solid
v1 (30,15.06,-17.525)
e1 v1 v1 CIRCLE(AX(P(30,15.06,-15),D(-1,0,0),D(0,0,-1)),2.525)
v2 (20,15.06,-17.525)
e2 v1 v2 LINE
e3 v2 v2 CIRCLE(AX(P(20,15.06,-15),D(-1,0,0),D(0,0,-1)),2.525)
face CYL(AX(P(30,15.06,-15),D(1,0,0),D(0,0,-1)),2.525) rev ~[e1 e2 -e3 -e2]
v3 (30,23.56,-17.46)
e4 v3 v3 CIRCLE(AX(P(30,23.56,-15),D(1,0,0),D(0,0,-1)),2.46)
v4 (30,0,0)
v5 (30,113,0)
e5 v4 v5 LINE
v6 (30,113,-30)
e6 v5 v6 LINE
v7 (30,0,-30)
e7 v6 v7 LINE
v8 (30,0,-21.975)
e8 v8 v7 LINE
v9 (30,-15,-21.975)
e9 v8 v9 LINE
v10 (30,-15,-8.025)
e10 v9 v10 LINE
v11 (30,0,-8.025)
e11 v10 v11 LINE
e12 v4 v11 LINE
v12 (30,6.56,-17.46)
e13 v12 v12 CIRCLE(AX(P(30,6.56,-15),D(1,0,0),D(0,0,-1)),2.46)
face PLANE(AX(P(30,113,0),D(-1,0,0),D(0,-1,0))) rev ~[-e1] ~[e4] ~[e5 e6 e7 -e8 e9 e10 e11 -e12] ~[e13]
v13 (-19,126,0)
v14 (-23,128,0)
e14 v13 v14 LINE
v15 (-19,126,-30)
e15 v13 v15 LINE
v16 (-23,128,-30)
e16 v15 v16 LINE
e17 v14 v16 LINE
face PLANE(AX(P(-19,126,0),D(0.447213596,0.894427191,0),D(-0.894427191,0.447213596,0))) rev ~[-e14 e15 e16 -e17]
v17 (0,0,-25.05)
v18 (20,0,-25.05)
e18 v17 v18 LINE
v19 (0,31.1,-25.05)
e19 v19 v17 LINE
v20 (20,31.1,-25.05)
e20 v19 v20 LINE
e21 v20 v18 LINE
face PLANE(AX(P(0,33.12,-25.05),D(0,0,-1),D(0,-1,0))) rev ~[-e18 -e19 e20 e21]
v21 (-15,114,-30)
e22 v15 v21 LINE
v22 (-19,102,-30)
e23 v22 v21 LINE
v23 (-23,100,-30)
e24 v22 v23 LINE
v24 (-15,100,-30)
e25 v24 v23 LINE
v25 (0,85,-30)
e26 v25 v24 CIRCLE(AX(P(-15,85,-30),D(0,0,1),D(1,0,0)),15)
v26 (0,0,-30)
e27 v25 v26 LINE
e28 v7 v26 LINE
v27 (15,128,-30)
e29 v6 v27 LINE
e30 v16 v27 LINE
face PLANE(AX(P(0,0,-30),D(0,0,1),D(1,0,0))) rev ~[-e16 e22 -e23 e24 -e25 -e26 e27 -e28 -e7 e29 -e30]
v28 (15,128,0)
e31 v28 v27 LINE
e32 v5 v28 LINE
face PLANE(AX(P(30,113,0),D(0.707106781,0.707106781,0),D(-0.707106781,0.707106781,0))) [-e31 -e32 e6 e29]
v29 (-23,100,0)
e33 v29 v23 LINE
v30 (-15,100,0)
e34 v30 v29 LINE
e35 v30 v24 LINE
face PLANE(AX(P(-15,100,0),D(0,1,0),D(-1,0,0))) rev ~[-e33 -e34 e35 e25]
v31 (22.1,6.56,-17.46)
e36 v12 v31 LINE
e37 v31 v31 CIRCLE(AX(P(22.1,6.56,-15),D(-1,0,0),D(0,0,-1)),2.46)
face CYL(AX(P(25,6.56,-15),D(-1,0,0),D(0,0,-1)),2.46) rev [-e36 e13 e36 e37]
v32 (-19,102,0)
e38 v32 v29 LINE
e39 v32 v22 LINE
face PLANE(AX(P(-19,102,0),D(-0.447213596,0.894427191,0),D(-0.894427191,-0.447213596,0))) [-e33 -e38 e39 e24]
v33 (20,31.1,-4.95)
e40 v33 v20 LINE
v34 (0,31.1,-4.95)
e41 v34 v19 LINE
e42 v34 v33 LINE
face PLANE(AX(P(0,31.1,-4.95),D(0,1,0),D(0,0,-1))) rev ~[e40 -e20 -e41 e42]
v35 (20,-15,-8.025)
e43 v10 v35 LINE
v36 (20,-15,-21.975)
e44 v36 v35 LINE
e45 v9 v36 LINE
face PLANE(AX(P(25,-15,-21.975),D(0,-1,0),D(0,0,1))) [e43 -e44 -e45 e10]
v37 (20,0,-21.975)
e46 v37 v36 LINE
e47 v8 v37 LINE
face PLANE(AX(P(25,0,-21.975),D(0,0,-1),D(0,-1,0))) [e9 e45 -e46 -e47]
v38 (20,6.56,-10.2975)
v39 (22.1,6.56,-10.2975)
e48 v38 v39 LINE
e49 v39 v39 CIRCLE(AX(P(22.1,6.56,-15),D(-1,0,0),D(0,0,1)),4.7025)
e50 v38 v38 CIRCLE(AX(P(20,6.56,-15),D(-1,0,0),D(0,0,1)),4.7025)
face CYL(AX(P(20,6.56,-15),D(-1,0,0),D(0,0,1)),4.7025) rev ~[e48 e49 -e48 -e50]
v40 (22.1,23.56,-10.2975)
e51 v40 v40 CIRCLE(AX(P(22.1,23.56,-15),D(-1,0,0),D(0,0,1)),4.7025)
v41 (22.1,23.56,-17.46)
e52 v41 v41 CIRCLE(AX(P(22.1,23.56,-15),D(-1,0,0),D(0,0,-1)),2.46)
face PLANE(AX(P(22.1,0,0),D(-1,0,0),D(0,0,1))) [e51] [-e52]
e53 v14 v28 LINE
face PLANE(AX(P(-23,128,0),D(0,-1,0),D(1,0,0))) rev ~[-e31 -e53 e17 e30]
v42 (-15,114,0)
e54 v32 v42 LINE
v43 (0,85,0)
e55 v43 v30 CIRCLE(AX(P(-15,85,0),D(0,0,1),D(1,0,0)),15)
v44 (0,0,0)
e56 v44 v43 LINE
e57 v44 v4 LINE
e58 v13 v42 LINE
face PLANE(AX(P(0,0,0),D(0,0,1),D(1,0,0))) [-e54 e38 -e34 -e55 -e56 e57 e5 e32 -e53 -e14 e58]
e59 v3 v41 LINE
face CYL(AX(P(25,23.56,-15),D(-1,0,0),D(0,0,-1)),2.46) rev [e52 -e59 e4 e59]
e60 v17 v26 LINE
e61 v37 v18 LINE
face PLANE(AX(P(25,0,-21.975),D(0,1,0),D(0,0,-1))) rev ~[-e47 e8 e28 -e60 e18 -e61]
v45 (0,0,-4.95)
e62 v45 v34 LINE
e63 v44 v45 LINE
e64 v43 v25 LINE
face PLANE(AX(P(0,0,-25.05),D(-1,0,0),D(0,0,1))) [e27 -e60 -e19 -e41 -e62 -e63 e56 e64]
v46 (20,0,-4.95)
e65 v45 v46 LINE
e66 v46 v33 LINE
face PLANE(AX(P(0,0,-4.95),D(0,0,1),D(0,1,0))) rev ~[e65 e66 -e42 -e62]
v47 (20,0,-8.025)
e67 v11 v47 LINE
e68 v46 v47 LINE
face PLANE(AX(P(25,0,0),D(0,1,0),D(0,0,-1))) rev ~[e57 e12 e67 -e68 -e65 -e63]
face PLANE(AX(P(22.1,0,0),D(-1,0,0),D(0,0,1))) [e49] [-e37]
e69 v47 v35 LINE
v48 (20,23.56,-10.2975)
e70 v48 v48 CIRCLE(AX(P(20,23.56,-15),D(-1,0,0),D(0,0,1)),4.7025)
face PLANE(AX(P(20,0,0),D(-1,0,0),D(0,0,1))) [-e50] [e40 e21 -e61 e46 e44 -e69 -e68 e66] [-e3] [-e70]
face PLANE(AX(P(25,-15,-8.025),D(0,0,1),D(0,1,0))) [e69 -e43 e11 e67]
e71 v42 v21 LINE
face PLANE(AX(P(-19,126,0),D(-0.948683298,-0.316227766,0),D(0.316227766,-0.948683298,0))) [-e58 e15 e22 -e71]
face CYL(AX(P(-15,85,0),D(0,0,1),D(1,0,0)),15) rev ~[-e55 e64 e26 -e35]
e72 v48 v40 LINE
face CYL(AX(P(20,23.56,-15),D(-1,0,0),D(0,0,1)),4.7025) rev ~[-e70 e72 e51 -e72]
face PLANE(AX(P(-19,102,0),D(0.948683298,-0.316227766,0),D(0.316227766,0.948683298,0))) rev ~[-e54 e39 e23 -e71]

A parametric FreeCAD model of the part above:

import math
import FreeCAD as App
import Part
import Sketcher
from FreeCAD import Vector

doc = App.newDocument("Part")
body = doc.addObject("PartDesign::Body", "Body")

# Sketch on XY plane
sketch1 = doc.addObject("Sketcher::SketchObject", "Sketch")
body.addObject(sketch1)
sketch1.AttachmentSupport = (doc.XY_Plane, [""])
sketch1.MapMode = "FlatFace"
sketch1.addGeometry([
    Part.LineSegment(Vector(0, 40, 0), Vector(0, 0, 0)),
    Part.LineSegment(Vector(0, 0, 0), Vector(25, 0, 0)),
    Part.LineSegment(Vector(25, 0, 0), Vector(25, 40, 0)),
    Part.LineSegment(Vector(25, 40, 0), Vector(0, 40, 0)),
], False)
sketch1.addConstraint([
    Sketcher.Constraint("Coincident", 0, 2, 1, 1),
    Sketcher.Constraint("Coincident", 1, 2, 2, 1),
    Sketcher.Constraint("Coincident", 2, 2, 3, 1),
    Sketcher.Constraint("Coincident", 3, 2, 0, 1),
    Sketcher.Constraint("Vertical", 0),
    Sketcher.Constraint("Horizontal", 1),
    Sketcher.Constraint("Vertical", 2),
    Sketcher.Constraint("Horizontal", 3),
    Sketcher.Constraint("Coincident", 0, 2, -1, 1),
    Sketcher.Constraint("DistanceX", 1, 1, 1, 2, 25.0),
    Sketcher.Constraint("DistanceY", 0, 2, 0, 1, 40.0),
])
pad1 = doc.addObject("PartDesign::Pad", "Pad")
body.addObject(pad1)
pad1.Profile = sketch1
pad1.Length = 30
pad1.Reversed = True

# Sketch on YZ plane
sketch2 = doc.addObject("Sketcher::SketchObject", "Sketch001")
body.addObject(sketch2)
sketch2.AttachmentSupport = (doc.YZ_Plane, [""])
sketch2.MapMode = "FlatFace"
sketch2.AttachmentOffset = App.Placement(Vector(0, 0, 25), App.Rotation())
sketch2.addGeometry(Part.Circle(Vector(6.56, -15, 0), Vector(0, 0, 1), 2.46), False)
sketch2.addConstraint([
    Sketcher.Constraint("Diameter", 0, 4.92),
    Sketcher.Constraint("DistanceY", 0, 3, -1, 1, 15.0),
    Sketcher.Constraint("DistanceX", -1, 1, 0, 3, 6.56),
])
pocket1 = doc.addObject("PartDesign::Pocket", "Pocket")
body.addObject(pocket1)
pocket1.Profile = sketch2
pocket1.Length = 30

# Sketch on YZ plane
sketch3 = doc.addObject("Sketcher::SketchObject", "Sketch002")
body.addObject(sketch3)
sketch3.AttachmentSupport = (doc.YZ_Plane, [""])
sketch3.MapMode = "FlatFace"
sketch3.addGeometry([
    Part.LineSegment(Vector(0, -25.05, 0), Vector(0, -4.95, 0)),
    Part.LineSegment(Vector(0, -4.95, 0), Vector(33.12, -4.95, 0)),
    Part.LineSegment(Vector(33.12, -4.95, 0), Vector(33.12, -25.05, 0)),
    Part.LineSegment(Vector(33.12, -25.05, 0), Vector(0, -25.05, 0)),
], False)
sketch3.addConstraint([
    Sketcher.Constraint("Coincident", 0, 2, 1, 1),
    Sketcher.Constraint("Coincident", 1, 2, 2, 1),
    Sketcher.Constraint("Coincident", 2, 2, 3, 1),
    Sketcher.Constraint("Coincident", 3, 2, 0, 1),
    Sketcher.Constraint("Vertical", 0),
    Sketcher.Constraint("Horizontal", 1),
    Sketcher.Constraint("Vertical", 2),
    Sketcher.Constraint("Horizontal", 3),
    Sketcher.Constraint("PointOnObject", 0, 2, -2),
    Sketcher.Constraint("DistanceY", 0, 1, 0, 2, 20.1),
    Sketcher.Constraint("DistanceX", 1, 1, 1, 2, 33.12),
    Sketcher.Constraint("DistanceY", 0, 2, -1, 1, 4.95),
])
pocket2 = doc.addObject("PartDesign::Pocket", "Pocket001")
body.addObject(pocket2)
pocket2.Profile = sketch3
pocket2.Length = 20
pocket2.Reversed = True

# Sketch on XZ plane
sketch4 = doc.addObject("Sketcher::SketchObject", "Sketch003")
body.addObject(sketch4)
sketch4.AttachmentSupport = (doc.XZ_Plane, [""])
sketch4.MapMode = "FlatFace"
sketch4.addGeometry([
    Part.LineSegment(Vector(25, -8.025, 0), Vector(20, -8.025, 0)),
    Part.LineSegment(Vector(20, -8.025, 0), Vector(20, -21.975, 0)),
    Part.LineSegment(Vector(20, -21.975, 0), Vector(25, -21.975, 0)),
    Part.LineSegment(Vector(25, -21.975, 0), Vector(25, -8.025, 0)),
], False)
sketch4.addConstraint([
    Sketcher.Constraint("Coincident", 0, 2, 1, 1),
    Sketcher.Constraint("Coincident", 1, 2, 2, 1),
    Sketcher.Constraint("Coincident", 2, 2, 3, 1),
    Sketcher.Constraint("Coincident", 3, 2, 0, 1),
    Sketcher.Constraint("Horizontal", 0),
    Sketcher.Constraint("Vertical", 1),
    Sketcher.Constraint("Horizontal", 2),
    Sketcher.Constraint("Vertical", 3),
    Sketcher.Constraint("DistanceY", 1, 2, 1, 1, 13.95),
    Sketcher.Constraint("DistanceX", 0, 2, 0, 1, 5.0),
    Sketcher.Constraint("DistanceX", -1, 1, 0, 2, 20.0),
    Sketcher.Constraint("DistanceY", 0, 2, -1, 1, 8.025),
])
pad2 = doc.addObject("PartDesign::Pad", "Pad001")
body.addObject(pad2)
pad2.Profile = sketch4
pad2.Length = 15

# Sketch on YZ plane
sketch5 = doc.addObject("Sketcher::SketchObject", "Sketch004")
body.addObject(sketch5)
sketch5.AttachmentSupport = (doc.YZ_Plane, [""])
sketch5.MapMode = "FlatFace"
sketch5.AttachmentOffset = App.Placement(Vector(0, 0, 20), App.Rotation())
sketch5.addGeometry([
    Part.Circle(Vector(6.56, -15, 0), Vector(0, 0, 1), 4.7025),
    Part.Circle(Vector(6.56, -15, 0), Vector(0, 0, 1), 2.46),
], False)
sketch5.addConstraint([
    Sketcher.Constraint("Coincident", 1, 3, 0, 3),
    Sketcher.Constraint("Diameter", 0, 9.405),
    Sketcher.Constraint("Diameter", 1, 4.92),
    Sketcher.Constraint("DistanceY", 0, 3, -1, 1, 15.0),
    Sketcher.Constraint("DistanceX", -1, 1, 0, 3, 6.56),
])
pocket3 = doc.addObject("PartDesign::Pocket", "Pocket002")
body.addObject(pocket3)
pocket3.Profile = sketch5
pocket3.Length = 2.1
pocket3.Reversed = True

# Sketch on YZ plane
sketch6 = doc.addObject("Sketcher::SketchObject", "Sketch005")
body.addObject(sketch6)
sketch6.AttachmentSupport = (doc.YZ_Plane, [""])
sketch6.MapMode = "FlatFace"
sketch6.AttachmentOffset = App.Placement(Vector(0, 0, 25), App.Rotation())
sketch6.addGeometry(Part.Circle(Vector(23.56, -15, 0), Vector(0, 0, 1), 2.46), False)
sketch6.addConstraint([
    Sketcher.Constraint("Diameter", 0, 4.92),
    Sketcher.Constraint("DistanceY", 0, 3, -1, 1, 15.0),
    Sketcher.Constraint("DistanceX", -1, 1, 0, 3, 23.56),
])
pocket4 = doc.addObject("PartDesign::Pocket", "Pocket003")
body.addObject(pocket4)
pocket4.Profile = sketch6
pocket4.Length = 10

# Sketch on YZ plane
sketch7 = doc.addObject("Sketcher::SketchObject", "Sketch006")
body.addObject(sketch7)
sketch7.AttachmentSupport = (doc.YZ_Plane, [""])
sketch7.MapMode = "FlatFace"
sketch7.AttachmentOffset = App.Placement(Vector(0, 0, 20), App.Rotation())
sketch7.addGeometry([
    Part.Circle(Vector(23.56, -15, 0), Vector(0, 0, 1), 4.7025),
    Part.Circle(Vector(23.56, -15, 0), Vector(0, 0, 1), 2.46),
], False)
sketch7.addConstraint([
    Sketcher.Constraint("Coincident", 1, 3, 0, 3),
    Sketcher.Constraint("Diameter", 0, 9.405),
    Sketcher.Constraint("Diameter", 1, 4.92),
    Sketcher.Constraint("DistanceY", 0, 3, -1, 1, 15.0),
    Sketcher.Constraint("DistanceX", -1, 1, 0, 3, 23.56),
])
pocket5 = doc.addObject("PartDesign::Pocket", "Pocket004")
body.addObject(pocket5)
pocket5.Profile = sketch7
pocket5.Length = 2.1
pocket5.Reversed = True

# Sketch on YZ plane
sketch8 = doc.addObject("Sketcher::SketchObject", "Sketch007")
body.addObject(sketch8)
sketch8.AttachmentSupport = (doc.YZ_Plane, [""])
sketch8.MapMode = "FlatFace"
sketch8.AttachmentOffset = App.Placement(Vector(0, 0, 25), App.Rotation())
sketch8.addGeometry([
    Part.LineSegment(Vector(0, -30, 0), Vector(40, -30, 0)),  # 0
    Part.LineSegment(Vector(40, -30, 0), Vector(40, 0, 0)),  # 1
    Part.LineSegment(Vector(40, 0, 0), Vector(0, 0, 0)),  # 2
    Part.LineSegment(Vector(0, 0, 0), Vector(0, -8.025, 0)),  # 3
    Part.LineSegment(Vector(0, -8.025, 0), Vector(-15, -8.025, 0)),  # 4
    Part.LineSegment(Vector(-15, -8.025, 0), Vector(-15, -21.975, 0)),  # 5
    Part.LineSegment(Vector(-15, -21.975, 0), Vector(0, -21.975, 0)),  # 6
    Part.LineSegment(Vector(0, -21.975, 0), Vector(0, -30, 0)),  # 7
    Part.Circle(Vector(6.56, -15, 0), Vector(0, 0, 1), 2.46),  # 8
    Part.Circle(Vector(23.56, -15, 0), Vector(0, 0, 1), 2.46),  # 9
], False)
sketch8.addConstraint([
    Sketcher.Constraint("Coincident", 0, 2, 1, 1),
    Sketcher.Constraint("Coincident", 1, 2, 2, 1),
    Sketcher.Constraint("Coincident", 2, 2, 3, 1),
    Sketcher.Constraint("Coincident", 3, 2, 4, 1),
    Sketcher.Constraint("Coincident", 4, 2, 5, 1),
    Sketcher.Constraint("Coincident", 5, 2, 6, 1),
    Sketcher.Constraint("Coincident", 6, 2, 7, 1),
    Sketcher.Constraint("Coincident", 7, 2, 0, 1),
    Sketcher.Constraint("Horizontal", 0),
    Sketcher.Constraint("Vertical", 1),
    Sketcher.Constraint("Horizontal", 2),
    Sketcher.Constraint("Vertical", 3),
    Sketcher.Constraint("Horizontal", 4),
    Sketcher.Constraint("Vertical", 5),
    Sketcher.Constraint("Horizontal", 6),
    Sketcher.Constraint("Vertical", 7),
    Sketcher.Constraint("Coincident", 2, 2, -1, 1),
    Sketcher.Constraint("Equal", 8, 9),
    Sketcher.Constraint("PointOnObject", 6, 2, -2),
    Sketcher.Constraint("Horizontal", 8, 3, 9, 3),
    Sketcher.Constraint("Equal", 3, 7),
    Sketcher.Constraint("Diameter", 8, 4.92),
    Sketcher.Constraint("DistanceX", 0, 1, 0, 2, 40.0),
    Sketcher.Constraint("DistanceX", 4, 2, 4, 1, 15.0),
    Sketcher.Constraint("DistanceY", 1, 1, 1, 2, 30.0),
    Sketcher.Constraint("DistanceY", 8, 3, -1, 1, 15.0),
    Sketcher.Constraint("DistanceX", 8, 3, 9, 3, 17.0),
    Sketcher.Constraint("DistanceY", 5, 2, 5, 1, 13.95),
    Sketcher.Constraint("DistanceX", -1, 1, 8, 3, 6.56),
])
pad3 = doc.addObject("PartDesign::Pad", "Pad002")
body.addObject(pad3)
pad3.Profile = sketch8
pad3.Length = 5

# Sketch on XZ plane
sketch9 = doc.addObject("Sketcher::SketchObject", "Sketch008")
body.addObject(sketch9)
sketch9.AttachmentSupport = (doc.XZ_Plane, [""])
sketch9.MapMode = "FlatFace"
sketch9.AttachmentOffset = App.Placement(Vector(0, 0, -40), App.Rotation())
sketch9.addGeometry([
    Part.LineSegment(Vector(30, -30, 0), Vector(0, -30, 0)),
    Part.LineSegment(Vector(0, -30, 0), Vector(0, 0, 0)),
    Part.LineSegment(Vector(0, 0, 0), Vector(30, 0, 0)),
    Part.LineSegment(Vector(30, 0, 0), Vector(30, -30, 0)),
], False)
sketch9.addConstraint([
    Sketcher.Constraint("Coincident", 0, 2, 1, 1),
    Sketcher.Constraint("Coincident", 1, 2, 2, 1),
    Sketcher.Constraint("Coincident", 2, 2, 3, 1),
    Sketcher.Constraint("Coincident", 3, 2, 0, 1),
    Sketcher.Constraint("Horizontal", 0),
    Sketcher.Constraint("Vertical", 1),
    Sketcher.Constraint("Horizontal", 2),
    Sketcher.Constraint("Vertical", 3),
    Sketcher.Constraint("Coincident", 1, 2, -1, 1),
    Sketcher.Constraint("Equal", 2, 1),
    Sketcher.Constraint("DistanceX", 0, 2, 0, 1, 30.0),
])
pad4 = doc.addObject("PartDesign::Pad", "Pad003")
body.addObject(pad4)
pad4.Profile = sketch9
pad4.Length = 30
pad4.Reversed = True

# Sketch on YZ plane
sketch10 = doc.addObject("Sketcher::SketchObject", "Sketch009")
body.addObject(sketch10)
sketch10.AttachmentSupport = (doc.YZ_Plane, [""])
sketch10.MapMode = "FlatFace"
sketch10.AttachmentOffset = App.Placement(Vector(0, 0, 30), App.Rotation())
sketch10.addGeometry(Part.Circle(Vector(15.06, -15, 0), Vector(0, 0, 1), 2.525), False)
sketch10.addConstraint([
    Sketcher.Constraint("Diameter", 0, 5.05),
    Sketcher.Constraint("DistanceY", 0, 3, -1, 1, 15.0),
    Sketcher.Constraint("DistanceX", -1, 1, 0, 3, 15.06),
])
pocket6 = doc.addObject("PartDesign::Pocket", "Pocket005")
body.addObject(pocket6)
pocket6.Profile = sketch10
pocket6.Length = 30

# Sketch on XY plane
sketch11 = doc.addObject("Sketcher::SketchObject", "Sketch010")
body.addObject(sketch11)
sketch11.AttachmentSupport = (doc.XY_Plane, [""])
sketch11.MapMode = "FlatFace"
sketch11.addGeometry([
    Part.LineSegment(Vector(0, 70, 0), Vector(30, 70, 0)),  # 0
    Part.LineSegment(Vector(30, 70, 0), Vector(30, 113, 0)),  # 1
    Part.LineSegment(Vector(30, 113, 0), Vector(15, 128, 0)),  # 2
    Part.LineSegment(Vector(15, 128, 0), Vector(-23, 128, 0)),  # 3
    Part.LineSegment(Vector(-23, 128, 0), Vector(-19, 126, 0)),  # 4
    Part.LineSegment(Vector(-19, 126, 0), Vector(-15, 114, 0)),  # 5
    Part.LineSegment(Vector(-15, 114, 0), Vector(-19, 102, 0)),  # 6
    Part.LineSegment(Vector(-19, 102, 0), Vector(-23, 100, 0)),  # 7
    Part.LineSegment(Vector(-23, 100, 0), Vector(-15, 100, 0)),  # 8
    Part.ArcOfCircle(Part.Circle(Vector(-15, 85, 0), Vector(0, 0, 1), 15), math.radians(0), math.radians(90)),  # 9
    Part.LineSegment(Vector(0, 85, 0), Vector(0, 70, 0)),  # 10
], False)
sketch11.addConstraint([
    Sketcher.Constraint("Coincident", 0, 2, 1, 1),
    Sketcher.Constraint("Coincident", 1, 2, 2, 1),
    Sketcher.Constraint("Coincident", 2, 2, 3, 1),
    Sketcher.Constraint("Coincident", 3, 2, 4, 1),
    Sketcher.Constraint("Coincident", 4, 2, 5, 1),
    Sketcher.Constraint("Coincident", 5, 2, 6, 1),
    Sketcher.Constraint("Coincident", 6, 2, 7, 1),
    Sketcher.Constraint("Coincident", 7, 2, 8, 1),
    Sketcher.Constraint("Tangent", 8, 2, 9, 2),
    Sketcher.Constraint("Tangent", 9, 1, 10, 1),
    Sketcher.Constraint("Coincident", 10, 2, 0, 1),
    Sketcher.Constraint("Horizontal", 0),
    Sketcher.Constraint("Vertical", 1),
    Sketcher.Constraint("Horizontal", 3),
    Sketcher.Constraint("Horizontal", 8),
    Sketcher.Constraint("Vertical", 10),
    Sketcher.Constraint("PointOnObject", 9, 1, -2),
    Sketcher.Constraint("Vertical", 9, 3, 5, 2),
    Sketcher.Constraint("Vertical", 4, 2, 6, 2),
    Sketcher.Constraint("Vertical", 3, 2, 7, 2),
    Sketcher.Constraint("Equal", 5, 6),
    Sketcher.Constraint("Equal", 4, 7),
    Sketcher.Constraint("Radius", 9, 15.0),
    Sketcher.Constraint("DistanceX", 0, 1, 0, 2, 30.0),
    Sketcher.Constraint("DistanceY", 10, 2, 10, 1, 15.0),
    Sketcher.Constraint("DistanceX", -1, 1, 2, 2, 15.0),
    Sketcher.Constraint("DistanceY", 9, 3, 1, 2, 28.0),
    Sketcher.Constraint("DistanceY", 1, 2, 2, 2, 15.0),
    Sketcher.Constraint("DistanceX", 3, 2, 3, 1, 38.0),
    Sketcher.Constraint("DistanceY", -1, 1, 9, 3, 85.0),
    Sketcher.Constraint("DistanceX", 4, 2, -1, 1, 19.0),
    Sketcher.Constraint("DistanceY", -1, 1, 4, 2, 126.0),
])
pad5 = doc.addObject("PartDesign::Pad", "Pad004")
body.addObject(pad5)
pad5.Profile = sketch11
pad5.Length = 30
pad5.Reversed = True

# Sketch on YZ plane
sketch12 = doc.addObject("Sketcher::SketchObject", "Sketch011")
body.addObject(sketch12)
sketch12.AttachmentSupport = (doc.YZ_Plane, [""])
sketch12.MapMode = "FlatFace"
sketch12.addGeometry([
    Part.LineSegment(Vector(33.12, -4.95, 0), Vector(33.12, -25.05, 0)),
    Part.LineSegment(Vector(33.12, -25.05, 0), Vector(31.1, -25.05, 0)),
    Part.LineSegment(Vector(31.1, -25.05, 0), Vector(31.1, -4.95, 0)),
    Part.LineSegment(Vector(31.1, -4.95, 0), Vector(33.12, -4.95, 0)),
], False)
sketch12.addConstraint([
    Sketcher.Constraint("Coincident", 0, 2, 1, 1),
    Sketcher.Constraint("Coincident", 1, 2, 2, 1),
    Sketcher.Constraint("Coincident", 2, 2, 3, 1),
    Sketcher.Constraint("Coincident", 3, 2, 0, 1),
    Sketcher.Constraint("Vertical", 0),
    Sketcher.Constraint("Horizontal", 1),
    Sketcher.Constraint("Vertical", 2),
    Sketcher.Constraint("Horizontal", 3),
    Sketcher.Constraint("DistanceX", 1, 2, 1, 1, 2.02),
    Sketcher.Constraint("DistanceY", 0, 2, 0, 1, 20.1),
    Sketcher.Constraint("DistanceX", -1, 1, 1, 2, 31.1),
    Sketcher.Constraint("DistanceY", 0, 2, -1, 1, 25.05),
])
pad6 = doc.addObject("PartDesign::Pad", "Pad005")
body.addObject(pad6)
pad6.Profile = sketch12
pad6.Length = 20

doc.recompute()
